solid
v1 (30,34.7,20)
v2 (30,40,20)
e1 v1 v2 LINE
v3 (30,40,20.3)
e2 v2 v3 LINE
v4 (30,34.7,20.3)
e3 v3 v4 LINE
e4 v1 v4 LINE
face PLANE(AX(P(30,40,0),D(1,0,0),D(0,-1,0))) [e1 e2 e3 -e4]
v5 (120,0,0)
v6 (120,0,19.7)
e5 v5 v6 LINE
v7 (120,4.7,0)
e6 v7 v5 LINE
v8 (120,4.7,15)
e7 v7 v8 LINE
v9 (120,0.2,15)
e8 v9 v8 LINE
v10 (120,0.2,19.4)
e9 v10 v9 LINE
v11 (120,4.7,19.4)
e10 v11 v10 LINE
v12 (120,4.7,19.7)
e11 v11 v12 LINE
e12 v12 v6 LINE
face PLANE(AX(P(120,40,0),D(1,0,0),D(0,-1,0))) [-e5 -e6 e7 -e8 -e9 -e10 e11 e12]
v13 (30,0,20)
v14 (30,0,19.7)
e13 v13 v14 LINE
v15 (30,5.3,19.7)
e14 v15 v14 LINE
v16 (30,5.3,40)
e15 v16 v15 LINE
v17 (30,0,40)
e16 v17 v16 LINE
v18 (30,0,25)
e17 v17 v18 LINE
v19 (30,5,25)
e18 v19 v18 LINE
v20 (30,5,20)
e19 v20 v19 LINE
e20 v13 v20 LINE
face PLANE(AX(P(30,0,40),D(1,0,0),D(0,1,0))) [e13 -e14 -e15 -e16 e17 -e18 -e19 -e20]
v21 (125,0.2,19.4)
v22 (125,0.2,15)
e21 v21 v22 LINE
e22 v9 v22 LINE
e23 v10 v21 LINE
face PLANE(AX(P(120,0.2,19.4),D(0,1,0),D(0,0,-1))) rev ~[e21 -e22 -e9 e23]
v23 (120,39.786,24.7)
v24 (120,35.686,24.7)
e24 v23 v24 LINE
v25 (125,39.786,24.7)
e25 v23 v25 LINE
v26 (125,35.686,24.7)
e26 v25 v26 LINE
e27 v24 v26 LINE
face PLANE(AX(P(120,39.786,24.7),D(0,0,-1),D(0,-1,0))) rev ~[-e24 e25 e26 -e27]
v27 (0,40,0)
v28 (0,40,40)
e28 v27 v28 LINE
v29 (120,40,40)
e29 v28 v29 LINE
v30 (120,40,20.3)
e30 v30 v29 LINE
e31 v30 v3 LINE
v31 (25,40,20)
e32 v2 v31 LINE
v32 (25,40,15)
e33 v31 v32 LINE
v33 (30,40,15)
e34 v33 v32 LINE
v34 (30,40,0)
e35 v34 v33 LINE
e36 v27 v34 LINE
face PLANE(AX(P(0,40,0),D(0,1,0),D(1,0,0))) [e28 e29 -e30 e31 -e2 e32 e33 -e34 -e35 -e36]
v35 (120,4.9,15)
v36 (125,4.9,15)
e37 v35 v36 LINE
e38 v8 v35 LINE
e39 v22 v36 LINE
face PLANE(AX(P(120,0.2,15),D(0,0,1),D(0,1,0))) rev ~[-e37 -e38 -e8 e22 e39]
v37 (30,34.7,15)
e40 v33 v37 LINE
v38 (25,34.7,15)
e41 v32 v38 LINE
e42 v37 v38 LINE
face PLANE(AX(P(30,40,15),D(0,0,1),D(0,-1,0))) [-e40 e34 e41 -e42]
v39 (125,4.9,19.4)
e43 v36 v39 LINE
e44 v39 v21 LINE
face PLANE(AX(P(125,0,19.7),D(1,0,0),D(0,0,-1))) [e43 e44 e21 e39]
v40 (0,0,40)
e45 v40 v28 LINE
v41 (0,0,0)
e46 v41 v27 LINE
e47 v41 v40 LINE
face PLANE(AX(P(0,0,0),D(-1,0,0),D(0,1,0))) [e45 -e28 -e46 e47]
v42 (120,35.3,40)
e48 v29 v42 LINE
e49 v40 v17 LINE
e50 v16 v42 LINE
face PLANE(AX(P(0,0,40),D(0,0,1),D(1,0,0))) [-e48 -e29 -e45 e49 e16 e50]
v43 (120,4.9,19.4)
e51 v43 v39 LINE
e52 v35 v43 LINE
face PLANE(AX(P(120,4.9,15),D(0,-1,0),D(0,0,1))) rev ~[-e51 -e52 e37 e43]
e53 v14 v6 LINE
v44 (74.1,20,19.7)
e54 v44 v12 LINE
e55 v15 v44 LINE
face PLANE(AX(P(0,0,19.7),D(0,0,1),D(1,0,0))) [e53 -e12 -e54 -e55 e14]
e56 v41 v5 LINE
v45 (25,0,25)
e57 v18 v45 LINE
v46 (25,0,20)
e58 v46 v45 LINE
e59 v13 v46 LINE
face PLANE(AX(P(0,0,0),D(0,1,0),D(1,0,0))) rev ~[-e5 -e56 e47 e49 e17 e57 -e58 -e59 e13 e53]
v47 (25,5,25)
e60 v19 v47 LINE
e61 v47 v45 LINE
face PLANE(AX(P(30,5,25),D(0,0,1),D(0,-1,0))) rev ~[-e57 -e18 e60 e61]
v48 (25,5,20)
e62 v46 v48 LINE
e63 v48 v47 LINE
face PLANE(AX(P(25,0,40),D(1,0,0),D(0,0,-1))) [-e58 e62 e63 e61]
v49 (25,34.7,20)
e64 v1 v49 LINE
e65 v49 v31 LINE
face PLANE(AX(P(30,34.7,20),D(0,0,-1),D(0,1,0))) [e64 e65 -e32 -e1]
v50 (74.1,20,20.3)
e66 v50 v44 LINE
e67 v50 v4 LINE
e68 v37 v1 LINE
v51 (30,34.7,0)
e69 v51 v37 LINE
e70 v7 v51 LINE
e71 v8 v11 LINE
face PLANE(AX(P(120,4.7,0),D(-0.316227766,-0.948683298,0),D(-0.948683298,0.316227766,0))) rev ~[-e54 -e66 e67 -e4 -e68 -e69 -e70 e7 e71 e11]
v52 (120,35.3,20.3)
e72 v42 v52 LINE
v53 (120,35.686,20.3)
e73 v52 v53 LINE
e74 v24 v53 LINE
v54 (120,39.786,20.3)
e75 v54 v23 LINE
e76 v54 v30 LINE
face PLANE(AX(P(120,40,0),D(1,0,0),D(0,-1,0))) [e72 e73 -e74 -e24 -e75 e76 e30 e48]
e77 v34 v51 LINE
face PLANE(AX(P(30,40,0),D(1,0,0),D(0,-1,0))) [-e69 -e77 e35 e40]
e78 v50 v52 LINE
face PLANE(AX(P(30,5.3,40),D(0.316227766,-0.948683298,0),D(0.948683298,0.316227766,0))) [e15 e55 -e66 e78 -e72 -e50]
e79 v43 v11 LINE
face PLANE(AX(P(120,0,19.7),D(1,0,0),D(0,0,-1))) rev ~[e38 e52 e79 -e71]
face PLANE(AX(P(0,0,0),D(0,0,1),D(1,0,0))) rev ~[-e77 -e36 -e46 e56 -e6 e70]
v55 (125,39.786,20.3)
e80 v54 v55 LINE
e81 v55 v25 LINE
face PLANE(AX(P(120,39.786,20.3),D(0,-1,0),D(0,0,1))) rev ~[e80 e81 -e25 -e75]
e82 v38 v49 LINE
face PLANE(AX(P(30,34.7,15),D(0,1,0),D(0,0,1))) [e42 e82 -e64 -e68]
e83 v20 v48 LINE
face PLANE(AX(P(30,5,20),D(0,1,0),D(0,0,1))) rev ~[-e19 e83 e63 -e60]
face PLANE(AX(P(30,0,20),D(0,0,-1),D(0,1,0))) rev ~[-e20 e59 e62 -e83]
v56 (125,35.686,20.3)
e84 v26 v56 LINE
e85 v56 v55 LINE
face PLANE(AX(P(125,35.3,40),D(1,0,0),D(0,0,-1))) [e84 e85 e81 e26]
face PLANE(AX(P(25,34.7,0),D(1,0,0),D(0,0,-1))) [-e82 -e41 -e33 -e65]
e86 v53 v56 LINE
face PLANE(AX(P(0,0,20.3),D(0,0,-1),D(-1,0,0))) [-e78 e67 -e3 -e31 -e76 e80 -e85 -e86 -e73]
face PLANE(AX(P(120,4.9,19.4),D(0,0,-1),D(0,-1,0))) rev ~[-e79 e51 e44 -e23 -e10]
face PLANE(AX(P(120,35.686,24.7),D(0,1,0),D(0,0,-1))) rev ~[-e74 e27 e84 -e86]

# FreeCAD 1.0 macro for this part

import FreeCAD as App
import Part
import Sketcher
from FreeCAD import Vector

doc = App.newDocument("Part")
body = doc.addObject("PartDesign::Body", "Body")

sketch1 = body.newObject("Sketcher::SketchObject", "Sketch")
sketch1.AttachmentSupport = (doc.getObject("XY_Plane"), [""])
sketch1.MapMode = "FlatFace"
sketch1.addGeometry(Part.LineSegment(Vector(0, 40, 0), Vector(0, 0, 0)), False)
sketch1.addGeometry(Part.LineSegment(Vector(0, 0, 0), Vector(120, 0, 0)), False)
sketch1.addGeometry(Part.LineSegment(Vector(120, 0, 0), Vector(120, 40, 0)), False)
sketch1.addGeometry(Part.LineSegment(Vector(120, 40, 0), Vector(0, 40, 0)), False)
sketch1.addConstraint(Sketcher.Constraint("Coincident", 0, 2, 1, 1))
sketch1.addConstraint(Sketcher.Constraint("Coincident", 1, 2, 2, 1))
sketch1.addConstraint(Sketcher.Constraint("Coincident", 2, 2, 3, 1))
sketch1.addConstraint(Sketcher.Constraint("Coincident", 3, 2, 0, 1))
sketch1.addConstraint(Sketcher.Constraint("Vertical", 0))
sketch1.addConstraint(Sketcher.Constraint("Horizontal", 1))
sketch1.addConstraint(Sketcher.Constraint("Vertical", 2))
sketch1.addConstraint(Sketcher.Constraint("Horizontal", 3))
sketch1.addConstraint(Sketcher.Constraint("Coincident", 0, 2, -1, 1))
sketch1.addConstraint(Sketcher.Constraint("DistanceX", 1, 1, 1, 2, 120.0))
sketch1.addConstraint(Sketcher.Constraint("DistanceY", 0, 2, 0, 1, 40.0))
pad1 = body.newObject("PartDesign::Pad", "Pad")
pad1.Profile = sketch1
pad1.Length = 40

sketch2 = body.newObject("Sketcher::SketchObject", "Sketch001")
sketch2.AttachmentSupport = (doc.getObject("XY_Plane"), [""])
sketch2.MapMode = "FlatFace"
sketch2.AttachmentOffset = App.Placement(Vector(0, 0, 40), App.Rotation())
sketch2.addGeometry(Part.LineSegment(Vector(30, 0, 0), Vector(120, 0, 0)), False)
sketch2.addGeometry(Part.LineSegment(Vector(120, 0, 0), Vector(120, 35, 0)), False)
sketch2.addGeometry(Part.LineSegment(Vector(120, 35, 0), Vector(30, 5, 0)), False)
sketch2.addGeometry(Part.LineSegment(Vector(30, 5, 0), Vector(30, 0, 0)), False)
sketch2.addConstraint(Sketcher.Constraint("Coincident", 0, 2, 1, 1))
sketch2.addConstraint(Sketcher.Constraint("Coincident", 1, 2, 2, 1))
sketch2.addConstraint(Sketcher.Constraint("Coincident", 2, 2, 3, 1))
sketch2.addConstraint(Sketcher.Constraint("Coincident", 3, 2, 0, 1))
sketch2.addConstraint(Sketcher.Constraint("Horizontal", 0))
sketch2.addConstraint(Sketcher.Constraint("Vertical", 1))
sketch2.addConstraint(Sketcher.Constraint("Vertical", 3))
sketch2.addConstraint(Sketcher.Constraint("PointOnObject", 0, 2, -1))
sketch2.addConstraint(Sketcher.Constraint("DistanceX", 0, 1, 0, 2, 90.0))
sketch2.addConstraint(Sketcher.Constraint("DistanceY", 1, 1, 1, 2, 35.3))
sketch2.addConstraint(Sketcher.Constraint("DistanceY", 3, 2, 3, 1, 5.3))
sketch2.addConstraint(Sketcher.Constraint("DistanceX", -1, 1, 2, 2, 30.0))
pocket1 = body.newObject("PartDesign::Pocket", "Pocket")
pocket1.Profile = sketch2
pocket1.Length = 20.3

sketch3 = body.newObject("Sketcher::SketchObject", "Sketch002")
sketch3.AttachmentSupport = (doc.getObject("XY_Plane"), [""])
sketch3.MapMode = "FlatFace"
sketch3.addGeometry(Part.LineSegment(Vector(30, 35, 0), Vector(30, 40, 0)), False)
sketch3.addGeometry(Part.LineSegment(Vector(30, 40, 0), Vector(120, 40, 0)), False)
sketch3.addGeometry(Part.LineSegment(Vector(120, 40, 0), Vector(120, 5, 0)), False)
sketch3.addGeometry(Part.LineSegment(Vector(120, 5, 0), Vector(30, 35, 0)), False)
sketch3.addConstraint(Sketcher.Constraint("Coincident", 0, 2, 1, 1))
sketch3.addConstraint(Sketcher.Constraint("Coincident", 1, 2, 2, 1))
sketch3.addConstraint(Sketcher.Constraint("Coincident", 2, 2, 3, 1))
sketch3.addConstraint(Sketcher.Constraint("Coincident", 3, 2, 0, 1))
sketch3.addConstraint(Sketcher.Constraint("Vertical", 0))
sketch3.addConstraint(Sketcher.Constraint("Horizontal", 1))
sketch3.addConstraint(Sketcher.Constraint("Vertical", 2))
sketch3.addConstraint(Sketcher.Constraint("DistanceX", 1, 1, 1, 2, 90.0))
sketch3.addConstraint(Sketcher.Constraint("DistanceY", 0, 1, 0, 2, 5.3))
sketch3.addConstraint(Sketcher.Constraint("DistanceX", -1, 1, 0, 2, 30.0))
sketch3.addConstraint(Sketcher.Constraint("DistanceY", -1, 1, 0, 2, 40.0))
sketch3.addConstraint(Sketcher.Constraint("DistanceY", 2, 2, 3, 2, 30.0))
pocket2 = body.newObject("PartDesign::Pocket", "Pocket001")
pocket2.Profile = sketch3
pocket2.Length = 20.3
pocket2.Reversed = True

sketch4 = body.newObject("Sketcher::SketchObject", "Sketch003")
sketch4.AttachmentSupport = (doc.getObject("YZ_Plane"), [""])
sketch4.MapMode = "FlatFace"
sketch4.AttachmentOffset = App.Placement(Vector(0, 0, 120), App.Rotation())
sketch4.addGeometry(Part.LineSegment(Vector(39.8, 24.7, 0), Vector(35.7, 24.7, 0)), False)
sketch4.addGeometry(Part.LineSegment(Vector(35.7, 24.7, 0), Vector(35.7, 20.3, 0)), False)
sketch4.addGeometry(Part.LineSegment(Vector(35.7, 20.3, 0), Vector(39.8, 20.3, 0)), False)
sketch4.addGeometry(Part.LineSegment(Vector(39.8, 20.3, 0), Vector(39.8, 24.7, 0)), False)
sketch4.addConstraint(Sketcher.Constraint("Coincident", 0, 2, 1, 1))
sketch4.addConstraint(Sketcher.Constraint("Coincident", 1, 2, 2, 1))
sketch4.addConstraint(Sketcher.Constraint("Coincident", 2, 2, 3, 1))
sketch4.addConstraint(Sketcher.Constraint("Coincident", 3, 2, 0, 1))
sketch4.addConstraint(Sketcher.Constraint("Horizontal", 0))
sketch4.addConstraint(Sketcher.Constraint("Vertical", 1))
sketch4.addConstraint(Sketcher.Constraint("Horizontal", 2))
sketch4.addConstraint(Sketcher.Constraint("Vertical", 3))
sketch4.addConstraint(Sketcher.Constraint("DistanceX", 0, 2, 0, 1, 4.1))
sketch4.addConstraint(Sketcher.Constraint("DistanceY", 1, 2, 1, 1, 4.4))
sketch4.addConstraint(Sketcher.Constraint("DistanceY", -1, 1, 0, 2, 24.7))
sketch4.addConstraint(Sketcher.Constraint("DistanceX", -1, 1, 0, 2, 35.686))
pad2 = body.newObject("PartDesign::Pad", "Pad001")
pad2.Profile = sketch4
pad2.Length = 5

sketch5 = body.newObject("Sketcher::SketchObject", "Sketch004")
sketch5.AttachmentSupport = (doc.getObject("YZ_Plane"), [""])
sketch5.MapMode = "FlatFace"
sketch5.AttachmentOffset = App.Placement(Vector(0, 0, 30), App.Rotation())
sketch5.addGeometry(Part.LineSegment(Vector(35, 20, 0), Vector(35, 15, 0)), False)
sketch5.addGeometry(Part.LineSegment(Vector(35, 15, 0), Vector(40, 15, 0)), False)
sketch5.addGeometry(Part.LineSegment(Vector(40, 15, 0), Vector(40, 20, 0)), False)
sketch5.addGeometry(Part.LineSegment(Vector(40, 20, 0), Vector(35, 20, 0)), False)
sketch5.addConstraint(Sketcher.Constraint("Coincident", 0, 2, 1, 1))
sketch5.addConstraint(Sketcher.Constraint("Coincident", 1, 2, 2, 1))
sketch5.addConstraint(Sketcher.Constraint("Coincident", 2, 2, 3, 1))
sketch5.addConstraint(Sketcher.Constraint("Coincident", 3, 2, 0, 1))
sketch5.addConstraint(Sketcher.Constraint("Vertical", 0))
sketch5.addConstraint(Sketcher.Constraint("Horizontal", 1))
sketch5.addConstraint(Sketcher.Constraint("Vertical", 2))
sketch5.addConstraint(Sketcher.Constraint("Horizontal", 3))
sketch5.addConstraint(Sketcher.Constraint("DistanceY", 0, 2, 0, 1, 5.0))
sketch5.addConstraint(Sketcher.Constraint("DistanceX", 1, 1, 1, 2, 5.3))
sketch5.addConstraint(Sketcher.Constraint("DistanceY", -1, 1, 0, 2, 15.0))
sketch5.addConstraint(Sketcher.Constraint("DistanceX", -1, 1, 1, 2, 40.0))
pocket3 = body.newObject("PartDesign::Pocket", "Pocket002")
pocket3.Profile = sketch5
pocket3.Length = 5

sketch6 = body.newObject("Sketcher::SketchObject", "Sketch005")
sketch6.AttachmentSupport = (doc.getObject("YZ_Plane"), [""])
sketch6.MapMode = "FlatFace"
sketch6.AttachmentOffset = App.Placement(Vector(0, 0, 30), App.Rotation())
sketch6.addGeometry(Part.LineSegment(Vector(0, 25, 0), Vector(0, 20, 0)), False)
sketch6.addGeometry(Part.LineSegment(Vector(0, 20, 0), Vector(5, 20, 0)), False)
sketch6.addGeometry(Part.LineSegment(Vector(5, 20, 0), Vector(5, 25, 0)), False)
sketch6.addGeometry(Part.LineSegment(Vector(5, 25, 0), Vector(0, 25, 0)), False)
sketch6.addConstraint(Sketcher.Constraint("Coincident", 0, 2, 1, 1))
sketch6.addConstraint(Sketcher.Constraint("Coincident", 1, 2, 2, 1))
sketch6.addConstraint(Sketcher.Constraint("Coincident", 2, 2, 3, 1))
sketch6.addConstraint(Sketcher.Constraint("Coincident", 3, 2, 0, 1))
sketch6.addConstraint(Sketcher.Constraint("Vertical", 0))
sketch6.addConstraint(Sketcher.Constraint("Horizontal", 1))
sketch6.addConstraint(Sketcher.Constraint("Vertical", 2))
sketch6.addConstraint(Sketcher.Constraint("Horizontal", 3))
sketch6.addConstraint(Sketcher.Constraint("PointOnObject", 0, 2, -2))
sketch6.addConstraint(Sketcher.Constraint("Equal", 3, 0))
sketch6.addConstraint(Sketcher.Constraint("DistanceX", 1, 1, 1, 2, 5.0))
sketch6.addConstraint(Sketcher.Constraint("DistanceY", -1, 1, 0, 2, 20.0))
pocket4 = body.newObject("PartDesign::Pocket", "Pocket003")
pocket4.Profile = sketch6
pocket4.Length = 5

sketch7 = body.newObject("Sketcher::SketchObject", "Sketch006")
sketch7.AttachmentSupport = (doc.getObject("YZ_Plane"), [""])
sketch7.MapMode = "FlatFace"
sketch7.AttachmentOffset = App.Placement(Vector(0, 0, 120), App.Rotation())
sketch7.addGeometry(Part.LineSegment(Vector(4.9, 19.4, 0), Vector(0.2, 19.4, 0)), False)
sketch7.addGeometry(Part.LineSegment(Vector(0.2, 19.4, 0), Vector(0.2, 15, 0)), False)
sketch7.addGeometry(Part.LineSegment(Vector(0.2, 15, 0), Vector(4.9, 15, 0)), False)
sketch7.addGeometry(Part.LineSegment(Vector(4.9, 15, 0), Vector(4.9, 19.4, 0)), False)
sketch7.addConstraint(Sketcher.Constraint("Coincident", 0, 2, 1, 1))
sketch7.addConstraint(Sketcher.Constraint("Coincident", 1, 2, 2, 1))
sketch7.addConstraint(Sketcher.Constraint("Coincident", 2, 2, 3, 1))
sketch7.addConstraint(Sketcher.Constraint("Coincident", 3, 2, 0, 1))
sketch7.addConstraint(Sketcher.Constraint("Horizontal", 0))
sketch7.addConstraint(Sketcher.Constraint("Vertical", 1))
sketch7.addConstraint(Sketcher.Constraint("Horizontal", 2))
sketch7.addConstraint(Sketcher.Constraint("Vertical", 3))
sketch7.addConstraint(Sketcher.Constraint("DistanceX", 0, 2, 0, 1, 4.7))
sketch7.addConstraint(Sketcher.Constraint("DistanceY", 1, 2, 1, 1, 4.4))
sketch7.addConstraint(Sketcher.Constraint("DistanceX", -1, 1, 0, 2, 0.2))
sketch7.addConstraint(Sketcher.Constraint("DistanceY", -1, 1, 1, 2, 15.0))
pad3 = body.newObject("PartDesign::Pad", "Pad002")
pad3.Profile = sketch7
pad3.Length = 5

doc.recompute()
